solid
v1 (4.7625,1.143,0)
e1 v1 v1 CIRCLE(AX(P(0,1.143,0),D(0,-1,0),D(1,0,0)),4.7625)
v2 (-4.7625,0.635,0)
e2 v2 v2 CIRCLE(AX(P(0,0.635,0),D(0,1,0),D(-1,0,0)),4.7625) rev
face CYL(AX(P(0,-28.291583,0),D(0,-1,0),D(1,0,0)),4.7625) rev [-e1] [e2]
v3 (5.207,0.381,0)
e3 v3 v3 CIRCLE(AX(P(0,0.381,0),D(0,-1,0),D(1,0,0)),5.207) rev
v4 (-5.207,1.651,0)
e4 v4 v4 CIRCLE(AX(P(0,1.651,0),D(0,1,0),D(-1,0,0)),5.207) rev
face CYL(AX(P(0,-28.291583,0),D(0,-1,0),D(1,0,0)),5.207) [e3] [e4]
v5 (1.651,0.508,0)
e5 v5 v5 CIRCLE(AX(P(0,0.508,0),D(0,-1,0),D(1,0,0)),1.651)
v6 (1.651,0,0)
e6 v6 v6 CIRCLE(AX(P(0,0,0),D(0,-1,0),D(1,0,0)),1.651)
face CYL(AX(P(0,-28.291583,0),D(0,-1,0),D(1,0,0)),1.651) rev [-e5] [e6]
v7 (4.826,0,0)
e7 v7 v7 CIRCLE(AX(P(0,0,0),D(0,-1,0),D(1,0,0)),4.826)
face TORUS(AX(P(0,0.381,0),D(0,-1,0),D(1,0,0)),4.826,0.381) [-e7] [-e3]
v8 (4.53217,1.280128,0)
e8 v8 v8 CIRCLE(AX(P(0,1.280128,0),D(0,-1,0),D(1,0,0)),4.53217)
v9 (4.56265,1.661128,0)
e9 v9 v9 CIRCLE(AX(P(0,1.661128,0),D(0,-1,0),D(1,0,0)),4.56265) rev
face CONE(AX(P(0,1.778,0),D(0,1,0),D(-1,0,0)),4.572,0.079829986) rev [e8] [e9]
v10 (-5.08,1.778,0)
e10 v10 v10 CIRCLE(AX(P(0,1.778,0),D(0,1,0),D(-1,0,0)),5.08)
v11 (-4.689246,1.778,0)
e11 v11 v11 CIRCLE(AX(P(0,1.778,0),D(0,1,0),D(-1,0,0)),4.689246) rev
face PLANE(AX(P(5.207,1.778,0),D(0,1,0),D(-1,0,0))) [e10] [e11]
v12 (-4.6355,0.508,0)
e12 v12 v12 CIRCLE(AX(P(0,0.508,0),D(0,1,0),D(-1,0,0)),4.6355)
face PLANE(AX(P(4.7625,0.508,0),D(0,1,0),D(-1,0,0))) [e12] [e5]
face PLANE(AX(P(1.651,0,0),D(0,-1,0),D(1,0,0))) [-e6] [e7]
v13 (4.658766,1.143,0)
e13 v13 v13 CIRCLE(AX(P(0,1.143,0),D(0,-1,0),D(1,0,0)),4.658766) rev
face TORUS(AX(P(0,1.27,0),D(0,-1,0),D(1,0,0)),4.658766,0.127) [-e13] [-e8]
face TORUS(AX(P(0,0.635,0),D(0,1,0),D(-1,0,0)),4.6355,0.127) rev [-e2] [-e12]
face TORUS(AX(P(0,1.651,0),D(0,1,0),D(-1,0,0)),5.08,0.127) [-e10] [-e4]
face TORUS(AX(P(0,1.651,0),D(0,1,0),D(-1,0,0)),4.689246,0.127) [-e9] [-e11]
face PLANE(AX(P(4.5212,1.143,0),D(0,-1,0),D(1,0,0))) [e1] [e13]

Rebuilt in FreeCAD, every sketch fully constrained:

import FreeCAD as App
import Part
import Sketcher

V = App.Vector
Q = App.Units.Quantity


def edges_at(feature, points):
    """Names of the edges that pass closest to the given points."""
    edges = feature.Shape.Edges
    near = lambda p: min(range(len(edges)), key=lambda i: edges[i].distToShape(Part.Vertex(*p))[0])
    return sorted({f"Edge{near(p) + 1}" for p in points})


def add_polygon(sketch, points):
    """Adds a closed chain of lines whose ends are joined by coincident constraints."""
    first, n = sketch.GeometryCount, len(points)
    for a, b in zip(points, points[1:] + points[:1]):
        sketch.addGeometry(Part.LineSegment(App.Vector(*a, 0), App.Vector(*b, 0)), False)
    for i in range(n):
        sketch.addConstraint(Sketcher.Constraint("Coincident", first + i, 2, first + (i + 1) % n, 1))

doc = App.newDocument("Part")
body = doc.addObject("PartDesign::Body", "Body")

sketch1 = body.newObject("Sketcher::SketchObject", "Sketch")
sketch1.AttachmentSupport = (doc.getObject("XY_Plane"), [""])
sketch1.MapMode = "FlatFace"
add_polygon(sketch1, [(1.651, 0), (5.207, 0), (5.207, 1.778), (4.572, 1.778), (4.5212, 1.143), (4.7625, 1.143), (4.7625, 0.508), (1.651, 0.508)])
sketch1.addConstraint(Sketcher.Constraint("Horizontal", 0))
sketch1.addConstraint(Sketcher.Constraint("Vertical", 1))
sketch1.addConstraint(Sketcher.Constraint("Horizontal", 2))
sketch1.addConstraint(Sketcher.Constraint("Horizontal", 4))
sketch1.addConstraint(Sketcher.Constraint("Vertical", 5))
sketch1.addConstraint(Sketcher.Constraint("Horizontal", 6))
sketch1.addConstraint(Sketcher.Constraint("Vertical", 7))
sketch1.addConstraint(Sketcher.Constraint("PointOnObject", 0, 2, -1))
sketch1.addConstraint(Sketcher.Constraint("Equal", 2, 5))
sketch1.addConstraint(Sketcher.Constraint("DistanceX", 0, 1, 0, 2, Q("0.14 in")))
sketch1.addConstraint(Sketcher.Constraint("DistanceY", 1, 1, 1, 2, Q("0.07 in")))
sketch1.addConstraint(Sketcher.Constraint("DistanceY", 7, 2, 7, 1, Q("0.02 in")))
sketch1.addConstraint(Sketcher.Constraint("DistanceX", 2, 2, 2, 1, Q("0.025 in")))
sketch1.addConstraint(Sketcher.Constraint("DistanceX", -1, 1, 2, 2, Q("0.18 in")))
sketch1.addConstraint(Sketcher.Constraint("DistanceX", 4, 1, 4, 2, Q("0.0095 in")))
sketch1.addConstraint(Sketcher.Constraint("DistanceX", 6, 2, 6, 1, Q("0.1225 in")))
revolution = body.newObject("PartDesign::Revolution", "Revolution")
revolution.Profile = sketch1
revolution.ReferenceAxis = (sketch1, ["V_Axis"])
revolution.Angle = 360
doc.recompute()

fillet = body.newObject("PartDesign::Fillet", "Fillet")
fillet.Base = (revolution, edges_at(revolution, [(-5.207, 0, 0)]))
fillet.Radius = Q("0.015 in")
doc.recompute()

fillet2 = body.newObject("PartDesign::Fillet", "Fillet001")
fillet2.Base = (fillet, edges_at(fillet, [
    (-4.763, 0.508, 0),
    (-4.521, 1.143, 0),
    (-4.572, 1.778, 0),
    (-5.207, 1.778, 0),
]))
fillet2.Radius = Q("0.005 in")

doc.recompute()
